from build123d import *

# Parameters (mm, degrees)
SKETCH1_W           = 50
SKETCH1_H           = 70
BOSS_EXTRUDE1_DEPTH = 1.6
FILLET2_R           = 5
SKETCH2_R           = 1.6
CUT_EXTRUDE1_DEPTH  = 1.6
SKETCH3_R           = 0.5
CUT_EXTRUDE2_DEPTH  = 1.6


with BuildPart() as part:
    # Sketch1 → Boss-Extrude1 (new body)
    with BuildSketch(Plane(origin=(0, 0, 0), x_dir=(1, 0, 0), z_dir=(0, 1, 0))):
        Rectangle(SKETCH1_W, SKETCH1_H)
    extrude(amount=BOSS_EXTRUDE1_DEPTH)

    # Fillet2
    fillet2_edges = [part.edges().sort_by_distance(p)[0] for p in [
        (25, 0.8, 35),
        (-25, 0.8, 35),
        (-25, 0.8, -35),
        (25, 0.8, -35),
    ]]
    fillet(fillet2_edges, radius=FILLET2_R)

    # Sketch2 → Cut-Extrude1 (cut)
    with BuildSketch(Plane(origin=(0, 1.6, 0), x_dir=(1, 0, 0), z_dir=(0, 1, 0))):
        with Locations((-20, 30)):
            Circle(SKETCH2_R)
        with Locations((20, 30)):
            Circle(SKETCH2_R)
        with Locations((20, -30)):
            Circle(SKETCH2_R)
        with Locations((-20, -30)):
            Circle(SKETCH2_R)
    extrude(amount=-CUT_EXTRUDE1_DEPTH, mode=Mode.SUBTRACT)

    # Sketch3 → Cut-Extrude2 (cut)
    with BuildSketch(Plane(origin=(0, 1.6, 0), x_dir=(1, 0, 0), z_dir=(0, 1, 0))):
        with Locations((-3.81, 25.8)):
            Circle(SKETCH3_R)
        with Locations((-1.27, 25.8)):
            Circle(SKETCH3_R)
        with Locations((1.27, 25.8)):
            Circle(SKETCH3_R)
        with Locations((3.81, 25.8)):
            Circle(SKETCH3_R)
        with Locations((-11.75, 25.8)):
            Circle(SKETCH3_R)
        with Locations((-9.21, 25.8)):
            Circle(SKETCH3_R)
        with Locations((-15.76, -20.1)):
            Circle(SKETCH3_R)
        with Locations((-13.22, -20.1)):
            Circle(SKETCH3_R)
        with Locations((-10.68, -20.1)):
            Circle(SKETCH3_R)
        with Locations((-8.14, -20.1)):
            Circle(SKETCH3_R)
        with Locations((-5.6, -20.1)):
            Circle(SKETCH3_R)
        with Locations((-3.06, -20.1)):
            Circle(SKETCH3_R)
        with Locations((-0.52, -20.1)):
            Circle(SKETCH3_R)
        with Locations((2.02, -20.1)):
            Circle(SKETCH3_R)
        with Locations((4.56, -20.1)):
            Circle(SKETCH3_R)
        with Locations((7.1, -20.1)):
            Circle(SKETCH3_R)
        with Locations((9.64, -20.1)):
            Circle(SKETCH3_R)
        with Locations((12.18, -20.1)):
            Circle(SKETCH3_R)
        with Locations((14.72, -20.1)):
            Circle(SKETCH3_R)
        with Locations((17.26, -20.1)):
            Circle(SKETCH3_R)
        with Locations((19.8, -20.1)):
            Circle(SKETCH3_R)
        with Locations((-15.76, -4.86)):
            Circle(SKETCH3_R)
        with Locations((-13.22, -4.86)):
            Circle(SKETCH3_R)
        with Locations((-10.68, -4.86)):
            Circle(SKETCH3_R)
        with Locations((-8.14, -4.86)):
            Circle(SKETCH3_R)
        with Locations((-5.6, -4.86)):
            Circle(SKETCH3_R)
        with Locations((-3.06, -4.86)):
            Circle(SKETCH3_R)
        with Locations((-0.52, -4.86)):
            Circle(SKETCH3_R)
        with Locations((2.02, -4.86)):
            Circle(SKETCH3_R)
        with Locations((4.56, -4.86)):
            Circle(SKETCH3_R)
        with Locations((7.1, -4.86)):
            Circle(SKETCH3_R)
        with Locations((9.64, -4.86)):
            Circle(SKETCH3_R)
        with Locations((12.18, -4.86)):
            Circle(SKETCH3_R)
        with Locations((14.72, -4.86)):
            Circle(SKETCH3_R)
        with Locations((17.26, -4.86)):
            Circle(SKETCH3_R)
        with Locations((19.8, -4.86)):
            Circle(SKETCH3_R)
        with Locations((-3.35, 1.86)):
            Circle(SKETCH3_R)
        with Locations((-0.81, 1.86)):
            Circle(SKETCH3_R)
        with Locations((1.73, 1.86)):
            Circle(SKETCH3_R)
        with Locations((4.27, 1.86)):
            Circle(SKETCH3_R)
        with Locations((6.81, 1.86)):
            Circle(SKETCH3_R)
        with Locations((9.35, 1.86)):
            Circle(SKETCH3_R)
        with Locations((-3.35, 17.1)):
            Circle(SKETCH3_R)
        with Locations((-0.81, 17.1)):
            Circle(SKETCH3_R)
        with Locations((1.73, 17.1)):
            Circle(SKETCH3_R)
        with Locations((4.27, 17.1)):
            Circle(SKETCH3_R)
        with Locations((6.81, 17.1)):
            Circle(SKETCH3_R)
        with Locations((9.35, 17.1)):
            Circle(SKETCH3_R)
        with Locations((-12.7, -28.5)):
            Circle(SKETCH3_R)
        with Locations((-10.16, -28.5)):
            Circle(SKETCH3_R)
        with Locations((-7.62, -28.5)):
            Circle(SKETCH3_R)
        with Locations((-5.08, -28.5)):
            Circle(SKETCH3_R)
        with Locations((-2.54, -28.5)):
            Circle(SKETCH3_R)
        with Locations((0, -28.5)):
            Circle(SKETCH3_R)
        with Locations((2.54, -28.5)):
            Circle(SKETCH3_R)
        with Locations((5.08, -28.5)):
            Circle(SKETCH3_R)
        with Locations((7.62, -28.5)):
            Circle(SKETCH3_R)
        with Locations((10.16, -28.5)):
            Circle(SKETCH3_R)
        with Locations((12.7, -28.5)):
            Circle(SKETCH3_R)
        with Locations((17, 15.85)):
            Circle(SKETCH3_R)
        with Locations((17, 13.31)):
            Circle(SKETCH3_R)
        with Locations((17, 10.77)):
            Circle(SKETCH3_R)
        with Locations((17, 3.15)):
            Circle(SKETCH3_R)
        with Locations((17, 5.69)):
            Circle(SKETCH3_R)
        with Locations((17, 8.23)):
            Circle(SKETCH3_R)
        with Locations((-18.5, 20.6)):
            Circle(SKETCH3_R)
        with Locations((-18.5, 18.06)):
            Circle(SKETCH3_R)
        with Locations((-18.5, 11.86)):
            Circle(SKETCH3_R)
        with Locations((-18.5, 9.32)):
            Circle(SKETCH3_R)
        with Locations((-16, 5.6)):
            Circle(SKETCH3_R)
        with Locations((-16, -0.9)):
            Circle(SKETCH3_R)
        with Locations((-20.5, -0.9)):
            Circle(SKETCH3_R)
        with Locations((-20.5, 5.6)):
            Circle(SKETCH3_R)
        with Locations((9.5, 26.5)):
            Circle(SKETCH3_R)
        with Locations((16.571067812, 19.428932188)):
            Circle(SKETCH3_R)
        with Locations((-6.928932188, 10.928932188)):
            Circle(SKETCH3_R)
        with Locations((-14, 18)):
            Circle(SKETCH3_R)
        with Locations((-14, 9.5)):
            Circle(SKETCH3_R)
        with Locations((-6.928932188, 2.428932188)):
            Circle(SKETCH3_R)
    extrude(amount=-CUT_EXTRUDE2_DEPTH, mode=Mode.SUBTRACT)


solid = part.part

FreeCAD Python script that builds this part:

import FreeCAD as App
import Part
import Sketcher

V = App.Vector


def edges_at(feature, points):
    """Names of the edges that pass closest to the given points."""
    edges = feature.Shape.Edges
    near = lambda p: min(range(len(edges)), key=lambda i: edges[i].distToShape(Part.Vertex(*p))[0])
    return sorted({f"Edge{near(p) + 1}" for p in points})

doc = App.newDocument("Part")
body = doc.addObject("PartDesign::Body", "Body")

# Sketch on XZ plane
sketch1 = body.newObject("Sketcher::SketchObject", "Sketch")
sketch1.AttachmentSupport = (doc.getObject("XZ_Plane"), [""])
sketch1.MapMode = "FlatFace"
sketch1.addGeometry(Part.LineSegment(V(-25, -35, 0), V(-25, 35, 0)), False)
sketch1.addGeometry(Part.LineSegment(V(-25, 35, 0), V(25, 35, 0)), False)
sketch1.addGeometry(Part.LineSegment(V(25, 35, 0), V(25, -35, 0)), False)
sketch1.addGeometry(Part.LineSegment(V(25, -35, 0), V(-25, -35, 0)), False)
sketch1.addConstraint(Sketcher.Constraint("Coincident", 0, 2, 1, 1))
sketch1.addConstraint(Sketcher.Constraint("Coincident", 1, 2, 2, 1))
sketch1.addConstraint(Sketcher.Constraint("Coincident", 2, 2, 3, 1))
sketch1.addConstraint(Sketcher.Constraint("Coincident", 3, 2, 0, 1))
sketch1.addConstraint(Sketcher.Constraint("Vertical", 0))
sketch1.addConstraint(Sketcher.Constraint("Horizontal", 1))
sketch1.addConstraint(Sketcher.Constraint("Vertical", 2))
sketch1.addConstraint(Sketcher.Constraint("Horizontal", 3))
sketch1.addConstraint(Sketcher.Constraint("Symmetric", 0, 2, 2, 2, -1, 1))
sketch1.addConstraint(Sketcher.Constraint("DistanceX", 1, 1, 1, 2, 50.0))
sketch1.addConstraint(Sketcher.Constraint("DistanceY", 0, 1, 0, 2, 70.0))
pad1 = body.newObject("PartDesign::Pad", "Pad")
pad1.Profile = sketch1
pad1.Length = 1.6
pad1.Reversed = True
doc.recompute()

fillet = body.newObject("PartDesign::Fillet", "Fillet")
fillet.Base = (pad1, edges_at(pad1, [
    (25, 0.8, 35),
    (-25, 0.8, 35),
    (-25, 0.8, -35),
    (25, 0.8, -35),
]))
fillet.Radius = 5

# Sketch on XZ plane
sketch2 = body.newObject("Sketcher::SketchObject", "Sketch001")
sketch2.AttachmentSupport = (doc.getObject("XZ_Plane"), [""])
sketch2.MapMode = "FlatFace"
sketch2.AttachmentOffset = App.Placement(V(0, 0, -1.6), App.Rotation())
sketch2.addGeometry(Part.Circle(V(-20, -30, 0), V(0, 0, 1), 1.6), False)
sketch2.addGeometry(Part.Circle(V(20, -30, 0), V(0, 0, 1), 1.6), False)
sketch2.addGeometry(Part.Circle(V(20, 30, 0), V(0, 0, 1), 1.6), False)
sketch2.addGeometry(Part.Circle(V(-20, 30, 0), V(0, 0, 1), 1.6), False)
sketch2.addConstraint(Sketcher.Constraint("Equal", 0, 1))
sketch2.addConstraint(Sketcher.Constraint("Equal", 1, 2))
sketch2.addConstraint(Sketcher.Constraint("Equal", 2, 3))
sketch2.addConstraint(Sketcher.Constraint("Symmetric", 0, 3, 2, 3, -1, 1))
sketch2.addConstraint(Sketcher.Constraint("Symmetric", 1, 3, 3, 3, -1, 1))
sketch2.addConstraint(Sketcher.Constraint("Symmetric", 0, 3, 1, 3, -2))
sketch2.addConstraint(Sketcher.Constraint("Diameter", 0, 3.2))
sketch2.addConstraint(Sketcher.Constraint("DistanceX", 0, 3, -1, 1, 20.0))
sketch2.addConstraint(Sketcher.Constraint("DistanceY", 0, 3, -1, 1, 30.0))
pocket1 = body.newObject("PartDesign::Pocket", "Pocket")
pocket1.Profile = sketch2
pocket1.Length = 1.6
pocket1.Reversed = True

# Sketch on XZ plane
sketch3 = body.newObject("Sketcher::SketchObject", "Sketch002")
sketch3.AttachmentSupport = (doc.getObject("XZ_Plane"), [""])
sketch3.MapMode = "FlatFace"
sketch3.AttachmentOffset = App.Placement(V(0, 0, -1.6), App.Rotation())
sketch3.addGeometry(Part.Circle(V(-3.8, -25.8, 0), V(0, 0, 1), 0.5), False)
sketch3.addGeometry(Part.Circle(V(-1.3, -25.8, 0), V(0, 0, 1), 0.5), False)
sketch3.addGeometry(Part.Circle(V(1.3, -25.8, 0), V(0, 0, 1), 0.5), False)
sketch3.addGeometry(Part.Circle(V(3.8, -25.8, 0), V(0, 0, 1), 0.5), False)
sketch3.addGeometry(Part.Circle(V(-11.8, -25.8, 0), V(0, 0, 1), 0.5), False)
sketch3.addGeometry(Part.Circle(V(-9.2, -25.8, 0), V(0, 0, 1), 0.5), False)
sketch3.addGeometry(Part.Circle(V(-15.8, 20.1, 0), V(0, 0, 1), 0.5), False)
sketch3.addGeometry(Part.Circle(V(-13.2, 20.1, 0), V(0, 0, 1), 0.5), False)
sketch3.addGeometry(Part.Circle(V(-10.7, 20.1, 0), V(0, 0, 1), 0.5), False)
sketch3.addGeometry(Part.Circle(V(-8.1, 20.1, 0), V(0, 0, 1), 0.5), False)
sketch3.addGeometry(Part.Circle(V(-5.6, 20.1, 0), V(0, 0, 1), 0.5), False)
sketch3.addGeometry(Part.Circle(V(-3.1, 20.1, 0), V(0, 0, 1), 0.5), False)
sketch3.addGeometry(Part.Circle(V(-0.5, 20.1, 0), V(0, 0, 1), 0.5), False)
sketch3.addGeometry(Part.Circle(V(2, 20.1, 0), V(0, 0, 1), 0.5), False)
sketch3.addGeometry(Part.Circle(V(4.6, 20.1, 0), V(0, 0, 1), 0.5), False)
sketch3.addGeometry(Part.Circle(V(7.1, 20.1, 0), V(0, 0, 1), 0.5), False)
sketch3.addGeometry(Part.Circle(V(9.6, 20.1, 0), V(0, 0, 1), 0.5), False)
sketch3.addGeometry(Part.Circle(V(12.2, 20.1, 0), V(0, 0, 1), 0.5), False)
sketch3.addGeometry(Part.Circle(V(14.7, 20.1, 0), V(0, 0, 1), 0.5), False)
sketch3.addGeometry(Part.Circle(V(17.3, 20.1, 0), V(0, 0, 1), 0.5), False)
sketch3.addGeometry(Part.Circle(V(19.8, 20.1, 0), V(0, 0, 1), 0.5), False)
sketch3.addGeometry(Part.Circle(V(-15.8, 4.9, 0), V(0, 0, 1), 0.5), False)
sketch3.addGeometry(Part.Circle(V(-13.2, 4.9, 0), V(0, 0, 1), 0.5), False)
sketch3.addGeometry(Part.Circle(V(-10.7, 4.9, 0), V(0, 0, 1), 0.5), False)
sketch3.addGeometry(Part.Circle(V(-8.1, 4.9, 0), V(0, 0, 1), 0.5), False)
sketch3.addGeometry(Part.Circle(V(-5.6, 4.9, 0), V(0, 0, 1), 0.5), False)
sketch3.addGeometry(Part.Circle(V(-3.1, 4.9, 0), V(0, 0, 1), 0.5), False)
sketch3.addGeometry(Part.Circle(V(-0.5, 4.9, 0), V(0, 0, 1), 0.5), False)
sketch3.addGeometry(Part.Circle(V(2, 4.9, 0), V(0, 0, 1), 0.5), False)
sketch3.addGeometry(Part.Circle(V(4.6, 4.9, 0), V(0, 0, 1), 0.5), False)
sketch3.addGeometry(Part.Circle(V(7.1, 4.9, 0), V(0, 0, 1), 0.5), False)
sketch3.addGeometry(Part.Circle(V(9.6, 4.9, 0), V(0, 0, 1), 0.5), False)
sketch3.addGeometry(Part.Circle(V(12.2, 4.9, 0), V(0, 0, 1), 0.5), False)
sketch3.addGeometry(Part.Circle(V(14.7, 4.9, 0), V(0, 0, 1), 0.5), False)
sketch3.addGeometry(Part.Circle(V(17.3, 4.9, 0), V(0, 0, 1), 0.5), False)
sketch3.addGeometry(Part.Circle(V(19.8, 4.9, 0), V(0, 0, 1), 0.5), False)
sketch3.addGeometry(Part.Circle(V(-3.4, -1.9, 0), V(0, 0, 1), 0.5), False)
sketch3.addGeometry(Part.Circle(V(-0.8, -1.9, 0), V(0, 0, 1), 0.5), False)
sketch3.addGeometry(Part.Circle(V(1.7, -1.9, 0), V(0, 0, 1), 0.5), False)
sketch3.addGeometry(Part.Circle(V(4.3, -1.9, 0), V(0, 0, 1), 0.5), False)
sketch3.addGeometry(Part.Circle(V(6.8, -1.9, 0), V(0, 0, 1), 0.5), False)
sketch3.addGeometry(Part.Circle(V(9.3, -1.9, 0), V(0, 0, 1), 0.5), False)
sketch3.addGeometry(Part.Circle(V(-3.4, -17.1, 0), V(0, 0, 1), 0.5), False)
sketch3.addGeometry(Part.Circle(V(-0.8, -17.1, 0), V(0, 0, 1), 0.5), False)
sketch3.addGeometry(Part.Circle(V(1.7, -17.1, 0), V(0, 0, 1), 0.5), False)
sketch3.addGeometry(Part.Circle(V(4.3, -17.1, 0), V(0, 0, 1), 0.5), False)
sketch3.addGeometry(Part.Circle(V(6.8, -17.1, 0), V(0, 0, 1), 0.5), False)
sketch3.addGeometry(Part.Circle(V(9.3, -17.1, 0), V(0, 0, 1), 0.5), False)
sketch3.addGeometry(Part.Circle(V(-12.7, 28.5, 0), V(0, 0, 1), 0.5), False)
sketch3.addGeometry(Part.Circle(V(-10.2, 28.5, 0), V(0, 0, 1), 0.5), False)
sketch3.addGeometry(Part.Circle(V(-7.6, 28.5, 0), V(0, 0, 1), 0.5), False)
sketch3.addGeometry(Part.Circle(V(-5.1, 28.5, 0), V(0, 0, 1), 0.5), False)
sketch3.addGeometry(Part.Circle(V(-2.5, 28.5, 0), V(0, 0, 1), 0.5), False)
sketch3.addGeometry(Part.Circle(V(0, 28.5, 0), V(0, 0, 1), 0.5), False)
sketch3.addGeometry(Part.Circle(V(2.5, 28.5, 0), V(0, 0, 1), 0.5), False)
sketch3.addGeometry(Part.Circle(V(5.1, 28.5, 0), V(0, 0, 1), 0.5), False)
sketch3.addGeometry(Part.Circle(V(7.6, 28.5, 0), V(0, 0, 1), 0.5), False)
sketch3.addGeometry(Part.Circle(V(10.2, 28.5, 0), V(0, 0, 1), 0.5), False)
sketch3.addGeometry(Part.Circle(V(12.7, 28.5, 0), V(0, 0, 1), 0.5), False)
sketch3.addGeometry(Part.Circle(V(17, -15.8, 0), V(0, 0, 1), 0.5), False)
sketch3.addGeometry(Part.Circle(V(17, -13.3, 0), V(0, 0, 1), 0.5), False)
sketch3.addGeometry(Part.Circle(V(17, -10.8, 0), V(0, 0, 1), 0.5), False)
sketch3.addGeometry(Part.Circle(V(17, -3.1, 0), V(0, 0, 1), 0.5), False)
sketch3.addGeometry(Part.Circle(V(17, -5.7, 0), V(0, 0, 1), 0.5), False)
sketch3.addGeometry(Part.Circle(V(17, -8.2, 0), V(0, 0, 1), 0.5), False)
sketch3.addGeometry(Part.Circle(V(-18.5, -20.6, 0), V(0, 0, 1), 0.5), False)
sketch3.addGeometry(Part.Circle(V(-18.5, -18.1, 0), V(0, 0, 1), 0.5), False)
sketch3.addGeometry(Part.Circle(V(-18.5, -11.9, 0), V(0, 0, 1), 0.5), False)
sketch3.addGeometry(Part.Circle(V(-18.5, -9.3, 0), V(0, 0, 1), 0.5), False)
sketch3.addGeometry(Part.Circle(V(-16, -5.6, 0), V(0, 0, 1), 0.5), False)
sketch3.addGeometry(Part.Circle(V(-16, 0.9, 0), V(0, 0, 1), 0.5), False)
sketch3.addGeometry(Part.Circle(V(-20.5, 0.9, 0), V(0, 0, 1), 0.5), False)
sketch3.addGeometry(Part.Circle(V(-20.5, -5.6, 0), V(0, 0, 1), 0.5), False)
sketch3.addGeometry(Part.Circle(V(9.5, -26.5, 0), V(0, 0, 1), 0.5), False)
sketch3.addGeometry(Part.Circle(V(16.6, -19.4, 0), V(0, 0, 1), 0.5), False)
sketch3.addGeometry(Part.Circle(V(-6.9, -10.9, 0), V(0, 0, 1), 0.5), False)
sketch3.addGeometry(Part.Circle(V(-14, -18, 0), V(0, 0, 1), 0.5), False)
sketch3.addGeometry(Part.Circle(V(-14, -9.5, 0), V(0, 0, 1), 0.5), False)
sketch3.addGeometry(Part.Circle(V(-6.9, -2.4, 0), V(0, 0, 1), 0.5), False)
sketch3.addConstraint(Sketcher.Constraint("Equal", 0, 1))
sketch3.addConstraint(Sketcher.Constraint("Equal", 1, 2))
sketch3.addConstraint(Sketcher.Constraint("Equal", 2, 3))
sketch3.addConstraint(Sketcher.Constraint("Equal", 3, 4))
sketch3.addConstraint(Sketcher.Constraint("Equal", 4, 5))
sketch3.addConstraint(Sketcher.Constraint("Equal", 5, 6))
sketch3.addConstraint(Sketcher.Constraint("Equal", 6, 7))
sketch3.addConstraint(Sketcher.Constraint("Equal", 7, 8))
sketch3.addConstraint(Sketcher.Constraint("Equal", 8, 9))
sketch3.addConstraint(Sketcher.Constraint("Equal", 9, 10))
sketch3.addConstraint(Sketcher.Constraint("Equal", 10, 11))
sketch3.addConstraint(Sketcher.Constraint("Equal", 11, 12))
sketch3.addConstraint(Sketcher.Constraint("Equal", 12, 13))
sketch3.addConstraint(Sketcher.Constraint("Equal", 13, 14))
sketch3.addConstraint(Sketcher.Constraint("Equal", 14, 15))
sketch3.addConstraint(Sketcher.Constraint("Equal", 15, 16))
sketch3.addConstraint(Sketcher.Constraint("Equal", 16, 17))
sketch3.addConstraint(Sketcher.Constraint("Equal", 17, 18))
sketch3.addConstraint(Sketcher.Constraint("Equal", 18, 19))
sketch3.addConstraint(Sketcher.Constraint("Equal", 19, 20))
sketch3.addConstraint(Sketcher.Constraint("Equal", 20, 21))
sketch3.addConstraint(Sketcher.Constraint("Equal", 21, 22))
sketch3.addConstraint(Sketcher.Constraint("Equal", 22, 23))
sketch3.addConstraint(Sketcher.Constraint("Equal", 23, 24))
sketch3.addConstraint(Sketcher.Constraint("Equal", 24, 25))
sketch3.addConstraint(Sketcher.Constraint("Equal", 25, 26))
sketch3.addConstraint(Sketcher.Constraint("Equal", 26, 27))
sketch3.addConstraint(Sketcher.Constraint("Equal", 27, 28))
sketch3.addConstraint(Sketcher.Constraint("Equal", 28, 29))
sketch3.addConstraint(Sketcher.Constraint("Equal", 29, 30))
sketch3.addConstraint(Sketcher.Constraint("Equal", 30, 31))
sketch3.addConstraint(Sketcher.Constraint("Equal", 31, 32))
sketch3.addConstraint(Sketcher.Constraint("Equal", 32, 33))
sketch3.addConstraint(Sketcher.Constraint("Equal", 33, 34))
sketch3.addConstraint(Sketcher.Constraint("Equal", 34, 35))
sketch3.addConstraint(Sketcher.Constraint("Equal", 35, 36))
sketch3.addConstraint(Sketcher.Constraint("Equal", 36, 37))
sketch3.addConstraint(Sketcher.Constraint("Equal", 37, 38))
sketch3.addConstraint(Sketcher.Constraint("Equal", 38, 39))
sketch3.addConstraint(Sketcher.Constraint("Equal", 39, 40))
sketch3.addConstraint(Sketcher.Constraint("Equal", 40, 41))
sketch3.addConstraint(Sketcher.Constraint("Equal", 41, 42))
sketch3.addConstraint(Sketcher.Constraint("Equal", 42, 43))
sketch3.addConstraint(Sketcher.Constraint("Equal", 43, 44))
sketch3.addConstraint(Sketcher.Constraint("Equal", 44, 45))
sketch3.addConstraint(Sketcher.Constraint("Equal", 45, 46))
sketch3.addConstraint(Sketcher.Constraint("Equal", 46, 47))
sketch3.addConstraint(Sketcher.Constraint("Equal", 47, 48))
sketch3.addConstraint(Sketcher.Constraint("Equal", 48, 49))
sketch3.addConstraint(Sketcher.Constraint("Equal", 49, 50))
sketch3.addConstraint(Sketcher.Constraint("Equal", 50, 51))
sketch3.addConstraint(Sketcher.Constraint("Equal", 51, 52))
sketch3.addConstraint(Sketcher.Constraint("Equal", 52, 53))
sketch3.addConstraint(Sketcher.Constraint("Equal", 53, 54))
sketch3.addConstraint(Sketcher.Constraint("Equal", 54, 55))
sketch3.addConstraint(Sketcher.Constraint("Equal", 55, 56))
sketch3.addConstraint(Sketcher.Constraint("Equal", 56, 57))
sketch3.addConstraint(Sketcher.Constraint("Equal", 57, 58))
sketch3.addConstraint(Sketcher.Constraint("Equal", 58, 59))
sketch3.addConstraint(Sketcher.Constraint("Equal", 59, 60))
sketch3.addConstraint(Sketcher.Constraint("Equal", 60, 61))
sketch3.addConstraint(Sketcher.Constraint("Equal", 61, 62))
sketch3.addConstraint(Sketcher.Constraint("Equal", 62, 63))
sketch3.addConstraint(Sketcher.Constraint("Equal", 63, 64))
sketch3.addConstraint(Sketcher.Constraint("Equal", 64, 65))
sketch3.addConstraint(Sketcher.Constraint("Equal", 65, 66))
sketch3.addConstraint(Sketcher.Constraint("Equal", 66, 67))
sketch3.addConstraint(Sketcher.Constraint("Equal", 67, 68))
sketch3.addConstraint(Sketcher.Constraint("Equal", 68, 69))
sketch3.addConstraint(Sketcher.Constraint("Equal", 69, 70))
sketch3.addConstraint(Sketcher.Constraint("Equal", 70, 71))
sketch3.addConstraint(Sketcher.Constraint("Equal", 71, 72))
sketch3.addConstraint(Sketcher.Constraint("Equal", 72, 73))
sketch3.addConstraint(Sketcher.Constraint("Equal", 73, 74))
sketch3.addConstraint(Sketcher.Constraint("Equal", 74, 75))
sketch3.addConstraint(Sketcher.Constraint("Equal", 75, 76))
sketch3.addConstraint(Sketcher.Constraint("Equal", 76, 77))
sketch3.addConstraint(Sketcher.Constraint("Equal", 77, 78))
sketch3.addConstraint(Sketcher.Constraint("Symmetric", 1, 3, 2, 3, -2))
sketch3.addConstraint(Sketcher.Constraint("Symmetric", 0, 3, 3, 3, -2))
sketch3.addConstraint(Sketcher.Constraint("Symmetric", 52, 3, 54, 3, -2))
sketch3.addConstraint(Sketcher.Constraint("Symmetric", 51, 3, 55, 3, -2))
sketch3.addConstraint(Sketcher.Constraint("Symmetric", 50, 3, 56, 3, -2))
sketch3.addConstraint(Sketcher.Constraint("Symmetric", 49, 3, 57, 3, -2))
sketch3.addConstraint(Sketcher.Constraint("Symmetric", 48, 3, 58, 3, -2))
sketch3.addConstraint(Sketcher.Constraint("PointOnObject", 53, 3, -2))
sketch3.addConstraint(Sketcher.Constraint("Horizontal", 0, 3, 1, 3))
sketch3.addConstraint(Sketcher.Constraint("Horizontal", 3, 3, 4, 3))
sketch3.addConstraint(Sketcher.Constraint("Horizontal", 4, 3, 5, 3))
sketch3.addConstraint(Sketcher.Constraint("Horizontal", 6, 3, 7, 3))
sketch3.addConstraint(Sketcher.Constraint("Horizontal", 7, 3, 8, 3))
sketch3.addConstraint(Sketcher.Constraint("Horizontal", 8, 3, 9, 3))
sketch3.addConstraint(Sketcher.Constraint("Horizontal", 9, 3, 10, 3))
sketch3.addConstraint(Sketcher.Constraint("Horizontal", 10, 3, 11, 3))
sketch3.addConstraint(Sketcher.Constraint("Horizontal", 11, 3, 12, 3))
sketch3.addConstraint(Sketcher.Constraint("Horizontal", 12, 3, 13, 3))
sketch3.addConstraint(Sketcher.Constraint("Horizontal", 13, 3, 14, 3))
sketch3.addConstraint(Sketcher.Constraint("Horizontal", 14, 3, 15, 3))
sketch3.addConstraint(Sketcher.Constraint("Horizontal", 15, 3, 16, 3))
sketch3.addConstraint(Sketcher.Constraint("Horizontal", 16, 3, 17, 3))
sketch3.addConstraint(Sketcher.Constraint("Horizontal", 17, 3, 18, 3))
sketch3.addConstraint(Sketcher.Constraint("Horizontal", 18, 3, 19, 3))
sketch3.addConstraint(Sketcher.Constraint("Horizontal", 19, 3, 20, 3))
sketch3.addConstraint(Sketcher.Constraint("Horizontal", 21, 3, 22, 3))
sketch3.addConstraint(Sketcher.Constraint("Horizontal", 22, 3, 23, 3))
sketch3.addConstraint(Sketcher.Constraint("Horizontal", 23, 3, 24, 3))
sketch3.addConstraint(Sketcher.Constraint("Horizontal", 24, 3, 25, 3))
sketch3.addConstraint(Sketcher.Constraint("Horizontal", 25, 3, 26, 3))
sketch3.addConstraint(Sketcher.Constraint("Horizontal", 26, 3, 27, 3))
sketch3.addConstraint(Sketcher.Constraint("Horizontal", 27, 3, 28, 3))
sketch3.addConstraint(Sketcher.Constraint("Horizontal", 28, 3, 29, 3))
sketch3.addConstraint(Sketcher.Constraint("Horizontal", 29, 3, 30, 3))
sketch3.addConstraint(Sketcher.Constraint("Horizontal", 30, 3, 31, 3))
sketch3.addConstraint(Sketcher.Constraint("Horizontal", 31, 3, 32, 3))
sketch3.addConstraint(Sketcher.Constraint("Horizontal", 32, 3, 33, 3))
sketch3.addConstraint(Sketcher.Constraint("Horizontal", 33, 3, 34, 3))
sketch3.addConstraint(Sketcher.Constraint("Horizontal", 34, 3, 35, 3))
sketch3.addConstraint(Sketcher.Constraint("Horizontal", 36, 3, 37, 3))
sketch3.addConstraint(Sketcher.Constraint("Horizontal", 37, 3, 38, 3))
sketch3.addConstraint(Sketcher.Constraint("Horizontal", 38, 3, 39, 3))
sketch3.addConstraint(Sketcher.Constraint("Horizontal", 39, 3, 40, 3))
sketch3.addConstraint(Sketcher.Constraint("Horizontal", 40, 3, 41, 3))
sketch3.addConstraint(Sketcher.Constraint("Horizontal", 42, 3, 43, 3))
sketch3.addConstraint(Sketcher.Constraint("Horizontal", 43, 3, 44, 3))
sketch3.addConstraint(Sketcher.Constraint("Horizontal", 44, 3, 45, 3))
sketch3.addConstraint(Sketcher.Constraint("Horizontal", 45, 3, 46, 3))
sketch3.addConstraint(Sketcher.Constraint("Horizontal", 46, 3, 47, 3))
sketch3.addConstraint(Sketcher.Constraint("Horizontal", 48, 3, 49, 3))
sketch3.addConstraint(Sketcher.Constraint("Horizontal", 49, 3, 50, 3))
sketch3.addConstraint(Sketcher.Constraint("Horizontal", 50, 3, 51, 3))
sketch3.addConstraint(Sketcher.Constraint("Horizontal", 51, 3, 52, 3))
sketch3.addConstraint(Sketcher.Constraint("Horizontal", 52, 3, 53, 3))
sketch3.addConstraint(Sketcher.Constraint("Horizontal", 70, 3, 71, 3))
sketch3.addConstraint(Sketcher.Constraint("Horizontal", 69, 3, 72, 3))
sketch3.addConstraint(Sketcher.Constraint("Vertical", 6, 3, 21, 3))
sketch3.addConstraint(Sketcher.Constraint("Vertical", 7, 3, 22, 3))
sketch3.addConstraint(Sketcher.Constraint("Vertical", 8, 3, 23, 3))
sketch3.addConstraint(Sketcher.Constraint("Vertical", 9, 3, 24, 3))
sketch3.addConstraint(Sketcher.Constraint("Vertical", 10, 3, 25, 3))
sketch3.addConstraint(Sketcher.Constraint("Vertical", 11, 3, 26, 3))
sketch3.addConstraint(Sketcher.Constraint("Vertical", 12, 3, 27, 3))
sketch3.addConstraint(Sketcher.Constraint("Vertical", 13, 3, 28, 3))
sketch3.addConstraint(Sketcher.Constraint("Vertical", 14, 3, 29, 3))
sketch3.addConstraint(Sketcher.Constraint("Vertical", 15, 3, 30, 3))
sketch3.addConstraint(Sketcher.Constraint("Vertical", 16, 3, 31, 3))
sketch3.addConstraint(Sketcher.Constraint("Vertical", 17, 3, 32, 3))
sketch3.addConstraint(Sketcher.Constraint("Vertical", 18, 3, 33, 3))
sketch3.addConstraint(Sketcher.Constraint("Vertical", 19, 3, 34, 3))
sketch3.addConstraint(Sketcher.Constraint("Vertical", 20, 3, 35, 3))
sketch3.addConstraint(Sketcher.Constraint("Vertical", 36, 3, 42, 3))
sketch3.addConstraint(Sketcher.Constraint("Vertical", 37, 3, 43, 3))
sketch3.addConstraint(Sketcher.Constraint("Vertical", 38, 3, 44, 3))
sketch3.addConstraint(Sketcher.Constraint("Vertical", 39, 3, 45, 3))
sketch3.addConstraint(Sketcher.Constraint("Vertical", 40, 3, 46, 3))
sketch3.addConstraint(Sketcher.Constraint("Vertical", 41, 3, 47, 3))
sketch3.addConstraint(Sketcher.Constraint("Vertical", 59, 3, 60, 3))
sketch3.addConstraint(Sketcher.Constraint("Vertical", 60, 3, 61, 3))
sketch3.addConstraint(Sketcher.Constraint("Vertical", 61, 3, 62, 3))
sketch3.addConstraint(Sketcher.Constraint("Vertical", 62, 3, 63, 3))
sketch3.addConstraint(Sketcher.Constraint("Vertical", 63, 3, 64, 3))
sketch3.addConstraint(Sketcher.Constraint("Vertical", 65, 3, 66, 3))
sketch3.addConstraint(Sketcher.Constraint("Vertical", 66, 3, 67, 3))
sketch3.addConstraint(Sketcher.Constraint("Vertical", 67, 3, 68, 3))
sketch3.addConstraint(Sketcher.Constraint("Vertical", 69, 3, 70, 3))
sketch3.addConstraint(Sketcher.Constraint("Vertical", 71, 3, 72, 3))
sketch3.addConstraint(Sketcher.Constraint("Vertical", 76, 3, 77, 3))
sketch3.addConstraint(Sketcher.Constraint("Vertical", 75, 3, 78, 3))
sketch3.addConstraint(Sketcher.Constraint("Diameter", 0, 1.0))
sketch3.addConstraint(Sketcher.Constraint("DistanceX", -1, 1, 59, 3, 17.0))
sketch3.addConstraint(Sketcher.Constraint("DistanceX", 69, 3, -1, 1, 16.0))
sketch3.addConstraint(Sketcher.Constraint("DistanceX", 76, 3, -1, 1, 14.0))
sketch3.addConstraint(Sketcher.Constraint("DistanceY", 76, 3, -1, 1, 18.0))
sketch3.addConstraint(Sketcher.Constraint("DistanceY", 0, 3, -1, 1, 25.8))
sketch3.addConstraint(Sketcher.Constraint("DistanceY", -1, 1, 6, 3, 20.1))
sketch3.addConstraint(Sketcher.Constraint("DistanceX", 10, 3, -1, 1, 5.6))
sketch3.addConstraint(Sketcher.Constraint("DistanceX", -1, 1, 15, 3, 7.1))
sketch3.addConstraint(Sketcher.Constraint("DistanceX", -1, 1, 20, 3, 19.8))
sketch3.addConstraint(Sketcher.Constraint("DistanceY", 42, 3, -1, 1, 17.1))
sketch3.addConstraint(Sketcher.Constraint("DistanceX", 48, 3, -1, 1, 12.7))
sketch3.addConstraint(Sketcher.Constraint("DistanceY", -1, 1, 48, 3, 28.5))
sketch3.addConstraint(Sketcher.Constraint("DistanceX", 65, 3, -1, 1, 18.5))
sketch3.addConstraint(Sketcher.Constraint("DistanceY", 65, 3, -1, 1, 20.6))
sketch3.addConstraint(Sketcher.Constraint("DistanceY", 69, 3, -1, 1, 5.6))
sketch3.addConstraint(Sketcher.Constraint("DistanceY", -1, 1, 70, 3, 0.9))
sketch3.addConstraint(Sketcher.Constraint("DistanceX", 71, 3, -1, 1, 20.5))
sketch3.addConstraint(Sketcher.Constraint("DistanceX", -1, 1, 73, 3, 9.5))
sketch3.addConstraint(Sketcher.Constraint("DistanceY", 73, 3, -1, 1, 26.5))
sketch3.addConstraint(Sketcher.Constraint("DistanceY", 77, 3, -1, 1, 9.5))
sketch3.addConstraint(Sketcher.Constraint("DistanceX", 0, 3, -1, 1, 3.81))
sketch3.addConstraint(Sketcher.Constraint("DistanceX", 1, 3, -1, 1, 1.27))
sketch3.addConstraint(Sketcher.Constraint("DistanceX", 4, 3, -1, 1, 11.75))
sketch3.addConstraint(Sketcher.Constraint("DistanceX", 5, 3, -1, 1, 9.21))
sketch3.addConstraint(Sketcher.Constraint("DistanceX", 6, 3, -1, 1, 15.76))
sketch3.addConstraint(Sketcher.Constraint("DistanceX", 7, 3, -1, 1, 13.22))
sketch3.addConstraint(Sketcher.Constraint("DistanceX", 8, 3, -1, 1, 10.68))
sketch3.addConstraint(Sketcher.Constraint("DistanceX", 9, 3, -1, 1, 8.14))
sketch3.addConstraint(Sketcher.Constraint("DistanceX", 11, 3, -1, 1, 3.06))
sketch3.addConstraint(Sketcher.Constraint("DistanceX", 12, 3, -1, 1, 0.52))
sketch3.addConstraint(Sketcher.Constraint("DistanceX", -1, 1, 13, 3, 2.02))
sketch3.addConstraint(Sketcher.Constraint("DistanceX", -1, 1, 14, 3, 4.56))
sketch3.addConstraint(Sketcher.Constraint("DistanceX", -1, 1, 16, 3, 9.64))
sketch3.addConstraint(Sketcher.Constraint("DistanceX", -1, 1, 17, 3, 12.18))
sketch3.addConstraint(Sketcher.Constraint("DistanceX", -1, 1, 18, 3, 14.72))
sketch3.addConstraint(Sketcher.Constraint("DistanceX", -1, 1, 19, 3, 17.26))
sketch3.addConstraint(Sketcher.Constraint("DistanceY", -1, 1, 21, 3, 4.86))
sketch3.addConstraint(Sketcher.Constraint("DistanceX", 36, 3, -1, 1, 3.35))
sketch3.addConstraint(Sketcher.Constraint("DistanceY", 36, 3, -1, 1, 1.86))
sketch3.addConstraint(Sketcher.Constraint("DistanceX", 37, 3, -1, 1, 0.81))
sketch3.addConstraint(Sketcher.Constraint("DistanceX", -1, 1, 38, 3, 1.73))
sketch3.addConstraint(Sketcher.Constraint("DistanceX", -1, 1, 39, 3, 4.27))
sketch3.addConstraint(Sketcher.Constraint("DistanceX", -1, 1, 40, 3, 6.81))
sketch3.addConstraint(Sketcher.Constraint("DistanceX", -1, 1, 41, 3, 9.35))
sketch3.addConstraint(Sketcher.Constraint("DistanceX", 49, 3, -1, 1, 10.16))
sketch3.addConstraint(Sketcher.Constraint("DistanceX", 50, 3, -1, 1, 7.62))
sketch3.addConstraint(Sketcher.Constraint("DistanceX", 51, 3, -1, 1, 5.08))
sketch3.addConstraint(Sketcher.Constraint("DistanceX", 52, 3, -1, 1, 2.54))
sketch3.addConstraint(Sketcher.Constraint("DistanceY", 59, 3, -1, 1, 15.85))
sketch3.addConstraint(Sketcher.Constraint("DistanceY", 60, 3, -1, 1, 13.31))
sketch3.addConstraint(Sketcher.Constraint("DistanceY", 61, 3, -1, 1, 10.77))
sketch3.addConstraint(Sketcher.Constraint("DistanceY", 62, 3, -1, 1, 3.15))
sketch3.addConstraint(Sketcher.Constraint("DistanceY", 63, 3, -1, 1, 5.69))
sketch3.addConstraint(Sketcher.Constraint("DistanceY", 64, 3, -1, 1, 8.23))
sketch3.addConstraint(Sketcher.Constraint("DistanceY", 66, 3, -1, 1, 18.06))
sketch3.addConstraint(Sketcher.Constraint("DistanceY", 67, 3, -1, 1, 11.86))
sketch3.addConstraint(Sketcher.Constraint("DistanceY", 68, 3, -1, 1, 9.32))
sketch3.addConstraint(Sketcher.Constraint("DistanceX", -1, 1, 74, 3, 16.571068))
sketch3.addConstraint(Sketcher.Constraint("DistanceY", 74, 3, -1, 1, 19.428932))
sketch3.addConstraint(Sketcher.Constraint("DistanceX", 75, 3, -1, 1, 6.928932))
sketch3.addConstraint(Sketcher.Constraint("DistanceY", 75, 3, -1, 1, 10.928932))
sketch3.addConstraint(Sketcher.Constraint("DistanceY", 78, 3, -1, 1, 2.428932))
pocket2 = body.newObject("PartDesign::Pocket", "Pocket001")
pocket2.Profile = sketch3
pocket2.Length = 1.6
pocket2.Reversed = True

doc.recompute()
